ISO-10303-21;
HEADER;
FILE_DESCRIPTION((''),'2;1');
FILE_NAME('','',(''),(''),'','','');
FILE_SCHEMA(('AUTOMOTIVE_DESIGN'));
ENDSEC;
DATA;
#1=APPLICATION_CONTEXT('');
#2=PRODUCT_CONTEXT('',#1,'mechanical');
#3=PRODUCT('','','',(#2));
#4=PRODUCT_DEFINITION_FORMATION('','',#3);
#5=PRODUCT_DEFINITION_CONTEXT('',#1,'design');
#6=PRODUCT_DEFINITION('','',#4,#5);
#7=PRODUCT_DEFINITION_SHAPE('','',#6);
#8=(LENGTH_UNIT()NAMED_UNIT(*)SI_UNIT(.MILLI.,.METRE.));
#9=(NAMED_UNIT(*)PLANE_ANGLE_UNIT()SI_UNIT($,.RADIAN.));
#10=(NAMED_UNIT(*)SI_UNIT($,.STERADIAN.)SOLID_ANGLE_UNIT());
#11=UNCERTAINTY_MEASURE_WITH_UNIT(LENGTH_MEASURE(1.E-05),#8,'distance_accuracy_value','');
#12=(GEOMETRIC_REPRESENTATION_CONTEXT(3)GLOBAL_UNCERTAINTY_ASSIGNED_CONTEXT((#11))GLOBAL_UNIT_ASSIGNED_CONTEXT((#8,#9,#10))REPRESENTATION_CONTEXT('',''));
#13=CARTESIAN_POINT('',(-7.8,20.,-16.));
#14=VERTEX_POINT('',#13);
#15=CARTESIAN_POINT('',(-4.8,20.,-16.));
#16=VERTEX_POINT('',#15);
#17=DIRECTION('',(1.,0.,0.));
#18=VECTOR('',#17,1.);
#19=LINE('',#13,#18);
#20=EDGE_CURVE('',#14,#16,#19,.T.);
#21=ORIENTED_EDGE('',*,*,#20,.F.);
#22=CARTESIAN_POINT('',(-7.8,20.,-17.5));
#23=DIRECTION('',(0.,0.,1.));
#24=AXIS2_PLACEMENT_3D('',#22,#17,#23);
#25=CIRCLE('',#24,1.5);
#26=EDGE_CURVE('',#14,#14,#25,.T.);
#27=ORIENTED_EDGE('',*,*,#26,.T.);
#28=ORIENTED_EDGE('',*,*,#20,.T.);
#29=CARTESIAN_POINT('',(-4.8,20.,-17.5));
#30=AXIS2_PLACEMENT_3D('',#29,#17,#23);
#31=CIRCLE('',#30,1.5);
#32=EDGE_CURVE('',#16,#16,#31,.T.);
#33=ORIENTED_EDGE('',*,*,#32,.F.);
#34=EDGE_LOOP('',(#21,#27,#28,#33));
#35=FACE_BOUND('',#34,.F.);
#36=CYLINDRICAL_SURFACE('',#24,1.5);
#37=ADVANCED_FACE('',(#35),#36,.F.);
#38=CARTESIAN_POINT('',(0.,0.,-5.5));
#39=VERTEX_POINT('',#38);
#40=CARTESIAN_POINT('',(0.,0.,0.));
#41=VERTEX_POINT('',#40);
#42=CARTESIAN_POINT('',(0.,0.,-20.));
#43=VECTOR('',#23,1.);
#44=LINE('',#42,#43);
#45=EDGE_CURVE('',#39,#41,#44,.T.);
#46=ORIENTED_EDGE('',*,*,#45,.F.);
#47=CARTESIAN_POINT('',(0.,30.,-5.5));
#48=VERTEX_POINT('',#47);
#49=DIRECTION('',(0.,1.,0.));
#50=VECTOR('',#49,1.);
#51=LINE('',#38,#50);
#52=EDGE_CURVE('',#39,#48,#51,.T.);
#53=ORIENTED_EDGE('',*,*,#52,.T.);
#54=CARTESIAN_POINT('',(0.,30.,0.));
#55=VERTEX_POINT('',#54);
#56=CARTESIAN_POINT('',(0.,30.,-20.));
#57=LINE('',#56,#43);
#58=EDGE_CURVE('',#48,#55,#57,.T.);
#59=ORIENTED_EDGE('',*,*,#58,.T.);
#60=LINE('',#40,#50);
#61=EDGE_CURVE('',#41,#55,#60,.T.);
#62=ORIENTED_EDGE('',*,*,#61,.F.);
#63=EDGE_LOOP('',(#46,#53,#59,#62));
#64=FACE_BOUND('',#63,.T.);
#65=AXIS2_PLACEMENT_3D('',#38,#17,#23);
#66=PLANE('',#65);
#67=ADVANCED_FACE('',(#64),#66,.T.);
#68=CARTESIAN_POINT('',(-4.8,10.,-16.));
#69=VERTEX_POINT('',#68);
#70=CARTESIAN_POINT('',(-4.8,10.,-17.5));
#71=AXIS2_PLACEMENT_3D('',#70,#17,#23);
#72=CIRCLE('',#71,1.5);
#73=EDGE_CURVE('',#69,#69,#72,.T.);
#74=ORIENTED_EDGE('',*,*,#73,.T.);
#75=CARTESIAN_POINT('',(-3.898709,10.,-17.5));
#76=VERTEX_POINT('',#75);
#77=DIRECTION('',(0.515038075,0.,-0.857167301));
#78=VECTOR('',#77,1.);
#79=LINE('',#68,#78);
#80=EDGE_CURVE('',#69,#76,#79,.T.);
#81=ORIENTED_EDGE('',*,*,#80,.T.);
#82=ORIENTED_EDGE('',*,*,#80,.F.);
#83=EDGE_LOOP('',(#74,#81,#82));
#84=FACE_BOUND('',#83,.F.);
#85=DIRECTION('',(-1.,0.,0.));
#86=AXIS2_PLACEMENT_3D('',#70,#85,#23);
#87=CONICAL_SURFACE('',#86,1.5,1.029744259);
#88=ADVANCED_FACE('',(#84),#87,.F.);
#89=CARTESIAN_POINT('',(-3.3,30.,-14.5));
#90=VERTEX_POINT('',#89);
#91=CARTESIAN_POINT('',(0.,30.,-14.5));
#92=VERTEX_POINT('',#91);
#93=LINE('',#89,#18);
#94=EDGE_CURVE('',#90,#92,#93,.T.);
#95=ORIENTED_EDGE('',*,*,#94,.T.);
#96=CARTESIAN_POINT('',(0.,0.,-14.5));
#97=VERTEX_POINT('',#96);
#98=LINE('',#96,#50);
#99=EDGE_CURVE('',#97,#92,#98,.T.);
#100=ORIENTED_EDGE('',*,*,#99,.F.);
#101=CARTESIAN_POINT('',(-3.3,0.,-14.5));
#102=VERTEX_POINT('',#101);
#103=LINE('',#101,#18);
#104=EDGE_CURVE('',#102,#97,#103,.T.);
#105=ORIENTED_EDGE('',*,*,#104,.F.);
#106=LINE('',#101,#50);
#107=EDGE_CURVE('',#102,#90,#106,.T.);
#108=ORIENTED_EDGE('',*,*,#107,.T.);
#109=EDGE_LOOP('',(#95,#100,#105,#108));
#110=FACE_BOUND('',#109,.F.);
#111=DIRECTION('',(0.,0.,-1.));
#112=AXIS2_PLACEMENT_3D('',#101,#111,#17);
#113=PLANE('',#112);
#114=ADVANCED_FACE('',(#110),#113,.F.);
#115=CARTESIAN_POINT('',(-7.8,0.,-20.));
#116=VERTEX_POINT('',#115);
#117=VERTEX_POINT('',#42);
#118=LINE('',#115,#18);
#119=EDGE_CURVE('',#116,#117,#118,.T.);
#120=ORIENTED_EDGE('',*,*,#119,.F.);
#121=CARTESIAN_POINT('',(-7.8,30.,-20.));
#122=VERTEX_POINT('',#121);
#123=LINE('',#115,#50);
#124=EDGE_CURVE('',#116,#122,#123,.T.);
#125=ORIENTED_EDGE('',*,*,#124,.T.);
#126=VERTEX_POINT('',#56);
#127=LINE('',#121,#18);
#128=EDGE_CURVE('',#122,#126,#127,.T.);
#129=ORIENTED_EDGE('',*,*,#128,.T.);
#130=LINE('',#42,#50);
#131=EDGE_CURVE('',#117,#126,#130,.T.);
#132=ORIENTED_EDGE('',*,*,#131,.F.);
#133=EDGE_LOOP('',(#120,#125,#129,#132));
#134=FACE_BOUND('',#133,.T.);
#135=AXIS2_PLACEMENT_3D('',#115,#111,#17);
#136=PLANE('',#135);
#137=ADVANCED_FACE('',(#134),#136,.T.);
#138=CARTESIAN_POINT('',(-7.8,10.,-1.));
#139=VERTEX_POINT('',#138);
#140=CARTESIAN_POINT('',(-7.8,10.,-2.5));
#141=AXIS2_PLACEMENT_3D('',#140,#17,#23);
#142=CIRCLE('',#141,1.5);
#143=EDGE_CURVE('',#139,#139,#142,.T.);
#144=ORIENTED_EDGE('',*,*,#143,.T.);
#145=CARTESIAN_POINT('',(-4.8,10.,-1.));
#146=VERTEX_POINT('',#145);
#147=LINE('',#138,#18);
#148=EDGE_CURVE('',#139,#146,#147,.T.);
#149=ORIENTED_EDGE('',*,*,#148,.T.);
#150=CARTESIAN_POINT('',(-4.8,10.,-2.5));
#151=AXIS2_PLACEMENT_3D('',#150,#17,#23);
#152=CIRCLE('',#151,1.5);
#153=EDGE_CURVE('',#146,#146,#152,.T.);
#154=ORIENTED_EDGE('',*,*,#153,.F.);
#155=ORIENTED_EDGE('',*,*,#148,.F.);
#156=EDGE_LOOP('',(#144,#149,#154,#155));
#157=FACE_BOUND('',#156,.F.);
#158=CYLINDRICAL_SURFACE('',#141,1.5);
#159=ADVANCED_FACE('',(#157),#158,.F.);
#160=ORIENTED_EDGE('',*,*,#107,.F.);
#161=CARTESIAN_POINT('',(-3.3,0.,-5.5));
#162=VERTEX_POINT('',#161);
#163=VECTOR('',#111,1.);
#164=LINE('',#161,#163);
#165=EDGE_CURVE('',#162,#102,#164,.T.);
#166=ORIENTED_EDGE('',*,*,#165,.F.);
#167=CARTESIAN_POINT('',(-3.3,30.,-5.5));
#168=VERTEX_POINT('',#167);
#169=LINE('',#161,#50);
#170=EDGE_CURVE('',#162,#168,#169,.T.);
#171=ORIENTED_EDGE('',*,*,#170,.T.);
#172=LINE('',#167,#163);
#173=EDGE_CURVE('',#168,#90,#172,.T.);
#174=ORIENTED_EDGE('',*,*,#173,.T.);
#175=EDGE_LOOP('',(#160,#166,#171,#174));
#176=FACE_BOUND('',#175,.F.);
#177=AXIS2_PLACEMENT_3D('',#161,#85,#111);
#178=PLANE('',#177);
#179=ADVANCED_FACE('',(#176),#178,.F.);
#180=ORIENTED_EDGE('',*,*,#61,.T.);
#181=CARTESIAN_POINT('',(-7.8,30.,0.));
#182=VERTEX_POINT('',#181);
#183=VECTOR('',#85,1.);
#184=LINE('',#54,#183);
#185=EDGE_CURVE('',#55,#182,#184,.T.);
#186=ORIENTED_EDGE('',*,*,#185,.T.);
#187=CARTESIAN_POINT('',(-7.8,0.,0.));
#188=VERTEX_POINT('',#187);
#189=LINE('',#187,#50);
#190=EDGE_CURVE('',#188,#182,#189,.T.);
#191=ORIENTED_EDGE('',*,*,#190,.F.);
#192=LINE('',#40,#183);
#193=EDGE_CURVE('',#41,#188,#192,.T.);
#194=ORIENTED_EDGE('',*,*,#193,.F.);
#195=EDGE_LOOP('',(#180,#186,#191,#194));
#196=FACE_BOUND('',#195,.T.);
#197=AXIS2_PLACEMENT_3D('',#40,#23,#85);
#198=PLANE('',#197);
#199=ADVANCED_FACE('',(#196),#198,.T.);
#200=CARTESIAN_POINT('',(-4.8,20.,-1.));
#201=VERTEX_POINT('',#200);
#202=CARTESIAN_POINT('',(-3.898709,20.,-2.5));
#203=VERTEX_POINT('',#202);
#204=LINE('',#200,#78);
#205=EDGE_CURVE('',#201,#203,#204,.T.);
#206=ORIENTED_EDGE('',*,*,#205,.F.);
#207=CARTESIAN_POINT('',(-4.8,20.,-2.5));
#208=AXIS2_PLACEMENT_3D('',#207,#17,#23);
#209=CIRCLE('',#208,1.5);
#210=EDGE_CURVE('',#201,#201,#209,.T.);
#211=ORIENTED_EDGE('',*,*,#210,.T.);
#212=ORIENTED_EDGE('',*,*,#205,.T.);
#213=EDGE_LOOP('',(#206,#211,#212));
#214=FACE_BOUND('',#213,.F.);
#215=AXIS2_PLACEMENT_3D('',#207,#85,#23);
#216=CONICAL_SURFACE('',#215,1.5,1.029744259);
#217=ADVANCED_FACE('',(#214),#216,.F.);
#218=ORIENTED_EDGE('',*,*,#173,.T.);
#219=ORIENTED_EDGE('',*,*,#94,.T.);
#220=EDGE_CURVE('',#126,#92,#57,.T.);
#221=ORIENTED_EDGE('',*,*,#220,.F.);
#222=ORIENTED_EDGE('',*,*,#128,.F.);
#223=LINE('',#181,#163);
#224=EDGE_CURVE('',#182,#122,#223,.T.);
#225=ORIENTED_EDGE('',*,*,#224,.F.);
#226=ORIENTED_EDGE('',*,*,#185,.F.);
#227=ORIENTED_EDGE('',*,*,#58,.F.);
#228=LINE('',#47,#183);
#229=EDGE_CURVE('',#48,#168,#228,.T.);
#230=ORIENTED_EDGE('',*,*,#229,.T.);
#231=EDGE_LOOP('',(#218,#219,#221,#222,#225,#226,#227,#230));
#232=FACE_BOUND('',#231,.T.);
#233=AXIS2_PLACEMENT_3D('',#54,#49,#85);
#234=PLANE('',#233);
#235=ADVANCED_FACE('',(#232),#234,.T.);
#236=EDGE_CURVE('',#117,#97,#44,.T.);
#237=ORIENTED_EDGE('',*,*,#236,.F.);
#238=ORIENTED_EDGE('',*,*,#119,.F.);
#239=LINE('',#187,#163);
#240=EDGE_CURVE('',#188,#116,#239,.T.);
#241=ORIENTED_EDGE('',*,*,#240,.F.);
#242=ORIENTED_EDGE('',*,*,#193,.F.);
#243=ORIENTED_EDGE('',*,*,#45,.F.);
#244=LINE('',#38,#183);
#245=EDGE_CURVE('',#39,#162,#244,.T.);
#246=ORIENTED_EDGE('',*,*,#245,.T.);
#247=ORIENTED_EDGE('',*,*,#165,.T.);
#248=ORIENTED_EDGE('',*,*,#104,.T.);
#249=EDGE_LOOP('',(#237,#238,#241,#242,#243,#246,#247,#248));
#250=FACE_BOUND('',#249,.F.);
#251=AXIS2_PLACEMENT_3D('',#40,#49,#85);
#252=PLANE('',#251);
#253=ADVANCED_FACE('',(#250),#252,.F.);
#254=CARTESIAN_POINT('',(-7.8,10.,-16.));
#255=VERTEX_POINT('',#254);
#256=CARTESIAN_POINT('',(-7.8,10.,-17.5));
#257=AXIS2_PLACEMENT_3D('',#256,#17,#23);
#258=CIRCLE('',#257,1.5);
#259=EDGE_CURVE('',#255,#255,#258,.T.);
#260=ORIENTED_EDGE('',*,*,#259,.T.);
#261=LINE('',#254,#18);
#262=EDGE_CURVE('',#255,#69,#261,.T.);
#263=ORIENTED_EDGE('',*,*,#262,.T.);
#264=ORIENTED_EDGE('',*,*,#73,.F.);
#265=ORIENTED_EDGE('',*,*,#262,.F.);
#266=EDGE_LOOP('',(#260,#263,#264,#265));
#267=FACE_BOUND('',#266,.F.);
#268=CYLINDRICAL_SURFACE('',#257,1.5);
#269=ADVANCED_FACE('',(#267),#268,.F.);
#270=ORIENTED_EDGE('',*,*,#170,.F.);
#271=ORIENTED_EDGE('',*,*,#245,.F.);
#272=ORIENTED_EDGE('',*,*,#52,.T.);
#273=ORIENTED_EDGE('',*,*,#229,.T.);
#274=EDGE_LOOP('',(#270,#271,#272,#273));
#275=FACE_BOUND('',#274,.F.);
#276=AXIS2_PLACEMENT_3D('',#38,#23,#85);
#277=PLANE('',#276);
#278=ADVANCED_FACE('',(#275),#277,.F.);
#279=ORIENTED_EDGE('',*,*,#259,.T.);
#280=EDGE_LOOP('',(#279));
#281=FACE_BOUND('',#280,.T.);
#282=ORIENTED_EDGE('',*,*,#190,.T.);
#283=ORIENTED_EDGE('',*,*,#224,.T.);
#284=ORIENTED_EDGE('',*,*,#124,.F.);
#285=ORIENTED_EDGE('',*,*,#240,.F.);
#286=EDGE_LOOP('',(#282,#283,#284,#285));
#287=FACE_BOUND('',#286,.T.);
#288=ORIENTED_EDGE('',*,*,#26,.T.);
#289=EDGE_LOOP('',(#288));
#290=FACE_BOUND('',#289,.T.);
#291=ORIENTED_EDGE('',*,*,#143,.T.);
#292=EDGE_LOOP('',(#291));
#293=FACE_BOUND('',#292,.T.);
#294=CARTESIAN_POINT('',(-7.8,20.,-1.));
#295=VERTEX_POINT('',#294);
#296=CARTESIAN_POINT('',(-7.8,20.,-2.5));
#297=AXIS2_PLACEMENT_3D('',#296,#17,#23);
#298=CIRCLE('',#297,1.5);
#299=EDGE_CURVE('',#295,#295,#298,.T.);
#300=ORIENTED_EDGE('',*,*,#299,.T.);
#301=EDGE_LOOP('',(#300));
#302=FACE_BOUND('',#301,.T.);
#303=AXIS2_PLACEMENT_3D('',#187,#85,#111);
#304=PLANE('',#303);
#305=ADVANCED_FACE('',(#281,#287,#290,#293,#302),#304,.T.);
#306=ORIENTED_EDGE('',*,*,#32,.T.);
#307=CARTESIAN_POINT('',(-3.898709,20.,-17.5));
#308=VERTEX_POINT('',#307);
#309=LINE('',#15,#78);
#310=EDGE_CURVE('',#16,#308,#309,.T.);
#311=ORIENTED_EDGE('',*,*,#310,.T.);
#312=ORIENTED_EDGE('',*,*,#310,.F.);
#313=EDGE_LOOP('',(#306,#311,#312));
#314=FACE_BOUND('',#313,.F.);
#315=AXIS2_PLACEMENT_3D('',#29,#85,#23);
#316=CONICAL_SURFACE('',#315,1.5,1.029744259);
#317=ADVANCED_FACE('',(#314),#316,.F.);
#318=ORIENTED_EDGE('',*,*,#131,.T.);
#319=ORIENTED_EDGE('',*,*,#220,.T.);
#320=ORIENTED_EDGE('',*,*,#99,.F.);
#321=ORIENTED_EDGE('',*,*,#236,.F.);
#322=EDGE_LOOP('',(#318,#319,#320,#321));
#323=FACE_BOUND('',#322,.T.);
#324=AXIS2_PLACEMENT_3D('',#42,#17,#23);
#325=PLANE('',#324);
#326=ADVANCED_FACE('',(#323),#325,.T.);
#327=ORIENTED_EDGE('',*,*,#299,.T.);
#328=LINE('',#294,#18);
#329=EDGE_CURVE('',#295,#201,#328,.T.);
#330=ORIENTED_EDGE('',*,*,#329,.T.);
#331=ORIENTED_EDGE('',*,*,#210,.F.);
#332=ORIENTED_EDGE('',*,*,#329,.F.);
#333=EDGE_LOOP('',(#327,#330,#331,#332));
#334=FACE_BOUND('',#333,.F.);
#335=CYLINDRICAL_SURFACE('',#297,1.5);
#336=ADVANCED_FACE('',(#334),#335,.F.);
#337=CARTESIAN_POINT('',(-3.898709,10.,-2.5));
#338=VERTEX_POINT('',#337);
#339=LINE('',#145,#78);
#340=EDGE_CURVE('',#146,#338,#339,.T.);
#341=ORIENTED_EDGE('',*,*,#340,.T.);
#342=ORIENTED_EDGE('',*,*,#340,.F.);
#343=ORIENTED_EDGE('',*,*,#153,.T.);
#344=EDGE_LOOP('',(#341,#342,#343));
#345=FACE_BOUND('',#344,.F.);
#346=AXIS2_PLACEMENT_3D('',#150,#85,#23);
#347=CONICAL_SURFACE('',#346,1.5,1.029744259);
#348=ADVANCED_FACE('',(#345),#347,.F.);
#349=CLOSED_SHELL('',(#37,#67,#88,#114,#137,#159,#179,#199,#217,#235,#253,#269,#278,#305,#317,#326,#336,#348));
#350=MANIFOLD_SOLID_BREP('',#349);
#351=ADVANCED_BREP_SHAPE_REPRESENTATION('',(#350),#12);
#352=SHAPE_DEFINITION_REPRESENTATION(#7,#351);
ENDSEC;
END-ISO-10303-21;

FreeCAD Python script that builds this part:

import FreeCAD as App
import Part
import Sketcher

V = App.Vector


def add_polygon(sketch, points):
    """Adds a closed chain of lines whose ends are joined by coincident constraints."""
    first, n = sketch.GeometryCount, len(points)
    for a, b in zip(points, points[1:] + points[:1]):
        sketch.addGeometry(Part.LineSegment(App.Vector(*a, 0), App.Vector(*b, 0)), False)
    for i in range(n):
        sketch.addConstraint(Sketcher.Constraint("Coincident", first + i, 2, first + (i + 1) % n, 1))

doc = App.newDocument("Part")
body = doc.addObject("PartDesign::Body", "Body")

sketch1 = body.newObject("Sketcher::SketchObject", "Sketch")
sketch1.AttachmentSupport = (doc.getObject("XZ_Plane"), [""])
sketch1.MapMode = "FlatFace"
add_polygon(sketch1, [(-7.8, 0), (0, 0), (0, -5.5), (-3.3, -5.5), (-3.3, -14.5), (0, -14.5), (0, -20), (-7.8, -20)])
sketch1.addConstraint([
    Sketcher.Constraint("Horizontal", 0),
    Sketcher.Constraint("Vertical", 1),
    Sketcher.Constraint("Horizontal", 2),
    Sketcher.Constraint("Vertical", 3),
    Sketcher.Constraint("Horizontal", 4),
    Sketcher.Constraint("Vertical", 5),
    Sketcher.Constraint("Horizontal", 6),
    Sketcher.Constraint("Vertical", 7),
    Sketcher.Constraint("Coincident", 0, 2, -1, 1),
    Sketcher.Constraint("PointOnObject", 4, 2, -2),
    Sketcher.Constraint("Equal", 1, 5),
    Sketcher.Constraint("DistanceY", 3, 2, 3, 1, 9.0),
    Sketcher.Constraint("DistanceY", 7, 1, 7, 2, 20.0),
    Sketcher.Constraint("DistanceX", 0, 1, 0, 2, 7.8),
    Sketcher.Constraint("DistanceX", 2, 2, 2, 1, 3.3),
])
pad1 = body.newObject("PartDesign::Pad", "Pad")
pad1.Profile = sketch1
pad1.Length = 30
pad1.Reversed = True

sketch2 = body.newObject("Sketcher::SketchObject", "Sketch001")
sketch2.AttachmentSupport = (doc.getObject("YZ_Plane"), [""])
sketch2.MapMode = "FlatFace"
sketch2.AttachmentOffset = App.Placement(V(0, 0, -7.8), App.Rotation())
sketch2.addGeometry([
    Part.Circle(V(20, -17.5, 0), V(0, 0, 1), 1.5),
    Part.Circle(V(10, -17.5, 0), V(0, 0, 1), 1.5),
    Part.Circle(V(20, -2.5, 0), V(0, 0, 1), 1.5),
    Part.Circle(V(10, -2.5, 0), V(0, 0, 1), 1.5),
], False)
sketch2.addConstraint([
    Sketcher.Constraint("Equal", 0, 1),
    Sketcher.Constraint("Equal", 1, 2),
    Sketcher.Constraint("Equal", 2, 3),
    Sketcher.Constraint("Horizontal", 0, 3, 1, 3),
    Sketcher.Constraint("Horizontal", 2, 3, 3, 3),
    Sketcher.Constraint("Vertical", 0, 3, 2, 3),
    Sketcher.Constraint("Vertical", 1, 3, 3, 3),
    Sketcher.Constraint("Diameter", 0, 3.0),
    Sketcher.Constraint("DistanceX", -1, 1, 0, 3, 20.0),
    Sketcher.Constraint("DistanceX", -1, 1, 1, 3, 10.0),
    Sketcher.Constraint("DistanceY", 0, 3, 2, 3, 15.0),
    Sketcher.Constraint("DistanceY", 0, 3, -1, 1, 17.5),
])
doc.recompute()
hole = body.newObject("PartDesign::Hole", "Hole")
hole.Profile = sketch2
hole.ThreadType = "None"
hole.Diameter = 3
hole.DepthType = "Dimension"
hole.Depth = 3
hole.DrillPoint = "Angled"
hole.DrillPointAngle = 118
hole.Reversed = True

doc.recompute()
